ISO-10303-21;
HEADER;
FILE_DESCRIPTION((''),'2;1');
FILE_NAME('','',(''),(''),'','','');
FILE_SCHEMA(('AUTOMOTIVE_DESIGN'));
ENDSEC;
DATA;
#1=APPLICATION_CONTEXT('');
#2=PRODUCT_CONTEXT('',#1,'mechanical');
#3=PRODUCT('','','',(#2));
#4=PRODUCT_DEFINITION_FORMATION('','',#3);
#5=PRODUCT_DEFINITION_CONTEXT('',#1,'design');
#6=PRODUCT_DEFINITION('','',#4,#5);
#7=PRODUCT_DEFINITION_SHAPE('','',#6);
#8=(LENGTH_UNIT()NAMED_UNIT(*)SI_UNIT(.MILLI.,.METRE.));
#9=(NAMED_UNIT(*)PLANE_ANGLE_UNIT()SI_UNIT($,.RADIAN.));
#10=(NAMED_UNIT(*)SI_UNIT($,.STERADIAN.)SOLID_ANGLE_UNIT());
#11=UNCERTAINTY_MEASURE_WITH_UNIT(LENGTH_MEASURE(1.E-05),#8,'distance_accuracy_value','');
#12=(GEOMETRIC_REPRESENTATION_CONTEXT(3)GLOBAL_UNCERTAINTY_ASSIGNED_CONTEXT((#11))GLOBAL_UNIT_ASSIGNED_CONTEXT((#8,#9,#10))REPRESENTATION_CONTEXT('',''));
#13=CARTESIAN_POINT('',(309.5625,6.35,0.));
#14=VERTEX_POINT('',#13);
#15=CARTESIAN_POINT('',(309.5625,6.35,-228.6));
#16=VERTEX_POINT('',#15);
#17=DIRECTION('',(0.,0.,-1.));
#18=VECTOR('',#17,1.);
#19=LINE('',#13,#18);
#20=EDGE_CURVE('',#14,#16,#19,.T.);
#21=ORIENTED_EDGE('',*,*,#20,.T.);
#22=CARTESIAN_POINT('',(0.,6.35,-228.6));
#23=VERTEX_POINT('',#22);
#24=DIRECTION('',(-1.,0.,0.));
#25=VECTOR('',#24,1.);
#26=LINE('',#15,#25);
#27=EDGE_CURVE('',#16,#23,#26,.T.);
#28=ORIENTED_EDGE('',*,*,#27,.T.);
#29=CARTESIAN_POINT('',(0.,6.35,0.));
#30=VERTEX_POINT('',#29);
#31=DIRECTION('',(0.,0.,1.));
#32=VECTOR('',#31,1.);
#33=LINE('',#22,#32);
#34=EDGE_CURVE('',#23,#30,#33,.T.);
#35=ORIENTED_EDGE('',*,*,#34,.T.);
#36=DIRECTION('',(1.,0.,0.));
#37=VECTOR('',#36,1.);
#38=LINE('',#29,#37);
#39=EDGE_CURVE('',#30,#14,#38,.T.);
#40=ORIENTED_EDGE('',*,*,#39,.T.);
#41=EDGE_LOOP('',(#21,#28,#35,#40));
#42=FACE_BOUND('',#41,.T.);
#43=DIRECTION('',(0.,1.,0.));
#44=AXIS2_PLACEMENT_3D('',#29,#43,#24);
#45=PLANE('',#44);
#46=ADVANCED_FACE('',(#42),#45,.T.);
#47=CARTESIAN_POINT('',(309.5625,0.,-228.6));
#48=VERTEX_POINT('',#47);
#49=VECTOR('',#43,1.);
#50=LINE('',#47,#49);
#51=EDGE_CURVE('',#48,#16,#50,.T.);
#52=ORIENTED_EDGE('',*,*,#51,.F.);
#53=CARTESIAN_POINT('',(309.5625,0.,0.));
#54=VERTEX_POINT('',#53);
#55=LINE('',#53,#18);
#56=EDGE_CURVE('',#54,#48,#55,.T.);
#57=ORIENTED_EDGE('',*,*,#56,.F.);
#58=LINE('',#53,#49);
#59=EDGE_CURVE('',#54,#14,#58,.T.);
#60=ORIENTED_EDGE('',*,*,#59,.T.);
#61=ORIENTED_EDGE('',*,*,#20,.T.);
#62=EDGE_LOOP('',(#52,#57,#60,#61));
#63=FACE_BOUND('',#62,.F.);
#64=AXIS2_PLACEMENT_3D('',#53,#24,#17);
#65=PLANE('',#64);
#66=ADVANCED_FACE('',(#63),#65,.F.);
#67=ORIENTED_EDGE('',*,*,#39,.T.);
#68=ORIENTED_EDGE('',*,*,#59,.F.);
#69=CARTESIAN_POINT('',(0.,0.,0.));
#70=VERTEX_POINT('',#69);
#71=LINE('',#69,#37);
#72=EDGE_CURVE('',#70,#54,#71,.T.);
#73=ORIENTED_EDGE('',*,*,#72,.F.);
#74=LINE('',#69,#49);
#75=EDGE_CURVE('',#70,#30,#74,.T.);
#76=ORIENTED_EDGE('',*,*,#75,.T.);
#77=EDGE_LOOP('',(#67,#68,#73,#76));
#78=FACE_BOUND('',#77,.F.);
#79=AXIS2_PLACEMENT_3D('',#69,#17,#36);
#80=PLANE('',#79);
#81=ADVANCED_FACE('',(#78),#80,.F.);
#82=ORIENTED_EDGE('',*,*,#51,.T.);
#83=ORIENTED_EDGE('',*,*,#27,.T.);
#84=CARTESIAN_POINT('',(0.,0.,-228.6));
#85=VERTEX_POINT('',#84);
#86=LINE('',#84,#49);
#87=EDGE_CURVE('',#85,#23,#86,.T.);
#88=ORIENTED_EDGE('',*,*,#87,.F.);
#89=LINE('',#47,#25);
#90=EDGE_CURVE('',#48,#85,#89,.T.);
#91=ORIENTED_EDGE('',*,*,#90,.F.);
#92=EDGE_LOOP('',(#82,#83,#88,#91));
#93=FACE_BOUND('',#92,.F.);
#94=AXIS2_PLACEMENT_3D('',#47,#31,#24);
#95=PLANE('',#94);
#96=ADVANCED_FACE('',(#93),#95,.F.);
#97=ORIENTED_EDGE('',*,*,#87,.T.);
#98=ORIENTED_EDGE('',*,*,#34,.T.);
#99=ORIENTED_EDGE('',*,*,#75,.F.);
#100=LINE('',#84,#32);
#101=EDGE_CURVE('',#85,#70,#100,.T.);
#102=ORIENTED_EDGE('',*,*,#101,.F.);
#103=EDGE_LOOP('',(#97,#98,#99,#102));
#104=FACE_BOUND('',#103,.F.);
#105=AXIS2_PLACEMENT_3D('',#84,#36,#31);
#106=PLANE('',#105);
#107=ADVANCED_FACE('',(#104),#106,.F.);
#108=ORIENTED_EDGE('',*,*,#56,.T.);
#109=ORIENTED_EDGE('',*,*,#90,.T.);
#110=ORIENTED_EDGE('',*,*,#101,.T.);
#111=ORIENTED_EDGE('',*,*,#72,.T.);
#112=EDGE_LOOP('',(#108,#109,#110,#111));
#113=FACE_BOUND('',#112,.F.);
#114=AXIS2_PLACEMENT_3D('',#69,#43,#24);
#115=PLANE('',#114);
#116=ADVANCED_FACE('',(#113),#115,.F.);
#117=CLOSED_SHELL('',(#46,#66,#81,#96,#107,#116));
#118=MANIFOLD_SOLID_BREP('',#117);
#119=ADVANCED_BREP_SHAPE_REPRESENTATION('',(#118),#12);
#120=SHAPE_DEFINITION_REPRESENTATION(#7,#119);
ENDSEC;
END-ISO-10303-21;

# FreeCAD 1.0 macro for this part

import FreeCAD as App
import Part
import Sketcher

V = App.Vector
Q = App.Units.Quantity


def add_polygon(sketch, points):
    """Adds a closed chain of lines whose ends are joined by coincident constraints."""
    first, n = sketch.GeometryCount, len(points)
    for a, b in zip(points, points[1:] + points[:1]):
        sketch.addGeometry(Part.LineSegment(App.Vector(*a, 0), App.Vector(*b, 0)), False)
    for i in range(n):
        sketch.addConstraint(Sketcher.Constraint("Coincident", first + i, 2, first + (i + 1) % n, 1))

doc = App.newDocument("Part")
body = doc.addObject("PartDesign::Body", "Body")

sketch1 = body.newObject("Sketcher::SketchObject", "Sketch")
sketch1.AttachmentSupport = (doc.getObject("XZ_Plane"), [""])
sketch1.MapMode = "FlatFace"
add_polygon(sketch1, [(0, -229), (0, 0), (310, 0), (310, -229)])
sketch1.addConstraint([
    Sketcher.Constraint("Vertical", 0),
    Sketcher.Constraint("Horizontal", 1),
    Sketcher.Constraint("Vertical", 2),
    Sketcher.Constraint("Horizontal", 3),
    Sketcher.Constraint("Coincident", 0, 2, -1, 1),
    Sketcher.Constraint("DistanceY", 0, 1, 0, 2, Q("9 in")),
    Sketcher.Constraint("DistanceX", 1, 1, 1, 2, Q("12.1875 in")),
])
pad1 = body.newObject("PartDesign::Pad", "Pad")
pad1.Profile = sketch1
pad1.Length = Q("0.25 in")
pad1.Reversed = True

doc.recompute()
